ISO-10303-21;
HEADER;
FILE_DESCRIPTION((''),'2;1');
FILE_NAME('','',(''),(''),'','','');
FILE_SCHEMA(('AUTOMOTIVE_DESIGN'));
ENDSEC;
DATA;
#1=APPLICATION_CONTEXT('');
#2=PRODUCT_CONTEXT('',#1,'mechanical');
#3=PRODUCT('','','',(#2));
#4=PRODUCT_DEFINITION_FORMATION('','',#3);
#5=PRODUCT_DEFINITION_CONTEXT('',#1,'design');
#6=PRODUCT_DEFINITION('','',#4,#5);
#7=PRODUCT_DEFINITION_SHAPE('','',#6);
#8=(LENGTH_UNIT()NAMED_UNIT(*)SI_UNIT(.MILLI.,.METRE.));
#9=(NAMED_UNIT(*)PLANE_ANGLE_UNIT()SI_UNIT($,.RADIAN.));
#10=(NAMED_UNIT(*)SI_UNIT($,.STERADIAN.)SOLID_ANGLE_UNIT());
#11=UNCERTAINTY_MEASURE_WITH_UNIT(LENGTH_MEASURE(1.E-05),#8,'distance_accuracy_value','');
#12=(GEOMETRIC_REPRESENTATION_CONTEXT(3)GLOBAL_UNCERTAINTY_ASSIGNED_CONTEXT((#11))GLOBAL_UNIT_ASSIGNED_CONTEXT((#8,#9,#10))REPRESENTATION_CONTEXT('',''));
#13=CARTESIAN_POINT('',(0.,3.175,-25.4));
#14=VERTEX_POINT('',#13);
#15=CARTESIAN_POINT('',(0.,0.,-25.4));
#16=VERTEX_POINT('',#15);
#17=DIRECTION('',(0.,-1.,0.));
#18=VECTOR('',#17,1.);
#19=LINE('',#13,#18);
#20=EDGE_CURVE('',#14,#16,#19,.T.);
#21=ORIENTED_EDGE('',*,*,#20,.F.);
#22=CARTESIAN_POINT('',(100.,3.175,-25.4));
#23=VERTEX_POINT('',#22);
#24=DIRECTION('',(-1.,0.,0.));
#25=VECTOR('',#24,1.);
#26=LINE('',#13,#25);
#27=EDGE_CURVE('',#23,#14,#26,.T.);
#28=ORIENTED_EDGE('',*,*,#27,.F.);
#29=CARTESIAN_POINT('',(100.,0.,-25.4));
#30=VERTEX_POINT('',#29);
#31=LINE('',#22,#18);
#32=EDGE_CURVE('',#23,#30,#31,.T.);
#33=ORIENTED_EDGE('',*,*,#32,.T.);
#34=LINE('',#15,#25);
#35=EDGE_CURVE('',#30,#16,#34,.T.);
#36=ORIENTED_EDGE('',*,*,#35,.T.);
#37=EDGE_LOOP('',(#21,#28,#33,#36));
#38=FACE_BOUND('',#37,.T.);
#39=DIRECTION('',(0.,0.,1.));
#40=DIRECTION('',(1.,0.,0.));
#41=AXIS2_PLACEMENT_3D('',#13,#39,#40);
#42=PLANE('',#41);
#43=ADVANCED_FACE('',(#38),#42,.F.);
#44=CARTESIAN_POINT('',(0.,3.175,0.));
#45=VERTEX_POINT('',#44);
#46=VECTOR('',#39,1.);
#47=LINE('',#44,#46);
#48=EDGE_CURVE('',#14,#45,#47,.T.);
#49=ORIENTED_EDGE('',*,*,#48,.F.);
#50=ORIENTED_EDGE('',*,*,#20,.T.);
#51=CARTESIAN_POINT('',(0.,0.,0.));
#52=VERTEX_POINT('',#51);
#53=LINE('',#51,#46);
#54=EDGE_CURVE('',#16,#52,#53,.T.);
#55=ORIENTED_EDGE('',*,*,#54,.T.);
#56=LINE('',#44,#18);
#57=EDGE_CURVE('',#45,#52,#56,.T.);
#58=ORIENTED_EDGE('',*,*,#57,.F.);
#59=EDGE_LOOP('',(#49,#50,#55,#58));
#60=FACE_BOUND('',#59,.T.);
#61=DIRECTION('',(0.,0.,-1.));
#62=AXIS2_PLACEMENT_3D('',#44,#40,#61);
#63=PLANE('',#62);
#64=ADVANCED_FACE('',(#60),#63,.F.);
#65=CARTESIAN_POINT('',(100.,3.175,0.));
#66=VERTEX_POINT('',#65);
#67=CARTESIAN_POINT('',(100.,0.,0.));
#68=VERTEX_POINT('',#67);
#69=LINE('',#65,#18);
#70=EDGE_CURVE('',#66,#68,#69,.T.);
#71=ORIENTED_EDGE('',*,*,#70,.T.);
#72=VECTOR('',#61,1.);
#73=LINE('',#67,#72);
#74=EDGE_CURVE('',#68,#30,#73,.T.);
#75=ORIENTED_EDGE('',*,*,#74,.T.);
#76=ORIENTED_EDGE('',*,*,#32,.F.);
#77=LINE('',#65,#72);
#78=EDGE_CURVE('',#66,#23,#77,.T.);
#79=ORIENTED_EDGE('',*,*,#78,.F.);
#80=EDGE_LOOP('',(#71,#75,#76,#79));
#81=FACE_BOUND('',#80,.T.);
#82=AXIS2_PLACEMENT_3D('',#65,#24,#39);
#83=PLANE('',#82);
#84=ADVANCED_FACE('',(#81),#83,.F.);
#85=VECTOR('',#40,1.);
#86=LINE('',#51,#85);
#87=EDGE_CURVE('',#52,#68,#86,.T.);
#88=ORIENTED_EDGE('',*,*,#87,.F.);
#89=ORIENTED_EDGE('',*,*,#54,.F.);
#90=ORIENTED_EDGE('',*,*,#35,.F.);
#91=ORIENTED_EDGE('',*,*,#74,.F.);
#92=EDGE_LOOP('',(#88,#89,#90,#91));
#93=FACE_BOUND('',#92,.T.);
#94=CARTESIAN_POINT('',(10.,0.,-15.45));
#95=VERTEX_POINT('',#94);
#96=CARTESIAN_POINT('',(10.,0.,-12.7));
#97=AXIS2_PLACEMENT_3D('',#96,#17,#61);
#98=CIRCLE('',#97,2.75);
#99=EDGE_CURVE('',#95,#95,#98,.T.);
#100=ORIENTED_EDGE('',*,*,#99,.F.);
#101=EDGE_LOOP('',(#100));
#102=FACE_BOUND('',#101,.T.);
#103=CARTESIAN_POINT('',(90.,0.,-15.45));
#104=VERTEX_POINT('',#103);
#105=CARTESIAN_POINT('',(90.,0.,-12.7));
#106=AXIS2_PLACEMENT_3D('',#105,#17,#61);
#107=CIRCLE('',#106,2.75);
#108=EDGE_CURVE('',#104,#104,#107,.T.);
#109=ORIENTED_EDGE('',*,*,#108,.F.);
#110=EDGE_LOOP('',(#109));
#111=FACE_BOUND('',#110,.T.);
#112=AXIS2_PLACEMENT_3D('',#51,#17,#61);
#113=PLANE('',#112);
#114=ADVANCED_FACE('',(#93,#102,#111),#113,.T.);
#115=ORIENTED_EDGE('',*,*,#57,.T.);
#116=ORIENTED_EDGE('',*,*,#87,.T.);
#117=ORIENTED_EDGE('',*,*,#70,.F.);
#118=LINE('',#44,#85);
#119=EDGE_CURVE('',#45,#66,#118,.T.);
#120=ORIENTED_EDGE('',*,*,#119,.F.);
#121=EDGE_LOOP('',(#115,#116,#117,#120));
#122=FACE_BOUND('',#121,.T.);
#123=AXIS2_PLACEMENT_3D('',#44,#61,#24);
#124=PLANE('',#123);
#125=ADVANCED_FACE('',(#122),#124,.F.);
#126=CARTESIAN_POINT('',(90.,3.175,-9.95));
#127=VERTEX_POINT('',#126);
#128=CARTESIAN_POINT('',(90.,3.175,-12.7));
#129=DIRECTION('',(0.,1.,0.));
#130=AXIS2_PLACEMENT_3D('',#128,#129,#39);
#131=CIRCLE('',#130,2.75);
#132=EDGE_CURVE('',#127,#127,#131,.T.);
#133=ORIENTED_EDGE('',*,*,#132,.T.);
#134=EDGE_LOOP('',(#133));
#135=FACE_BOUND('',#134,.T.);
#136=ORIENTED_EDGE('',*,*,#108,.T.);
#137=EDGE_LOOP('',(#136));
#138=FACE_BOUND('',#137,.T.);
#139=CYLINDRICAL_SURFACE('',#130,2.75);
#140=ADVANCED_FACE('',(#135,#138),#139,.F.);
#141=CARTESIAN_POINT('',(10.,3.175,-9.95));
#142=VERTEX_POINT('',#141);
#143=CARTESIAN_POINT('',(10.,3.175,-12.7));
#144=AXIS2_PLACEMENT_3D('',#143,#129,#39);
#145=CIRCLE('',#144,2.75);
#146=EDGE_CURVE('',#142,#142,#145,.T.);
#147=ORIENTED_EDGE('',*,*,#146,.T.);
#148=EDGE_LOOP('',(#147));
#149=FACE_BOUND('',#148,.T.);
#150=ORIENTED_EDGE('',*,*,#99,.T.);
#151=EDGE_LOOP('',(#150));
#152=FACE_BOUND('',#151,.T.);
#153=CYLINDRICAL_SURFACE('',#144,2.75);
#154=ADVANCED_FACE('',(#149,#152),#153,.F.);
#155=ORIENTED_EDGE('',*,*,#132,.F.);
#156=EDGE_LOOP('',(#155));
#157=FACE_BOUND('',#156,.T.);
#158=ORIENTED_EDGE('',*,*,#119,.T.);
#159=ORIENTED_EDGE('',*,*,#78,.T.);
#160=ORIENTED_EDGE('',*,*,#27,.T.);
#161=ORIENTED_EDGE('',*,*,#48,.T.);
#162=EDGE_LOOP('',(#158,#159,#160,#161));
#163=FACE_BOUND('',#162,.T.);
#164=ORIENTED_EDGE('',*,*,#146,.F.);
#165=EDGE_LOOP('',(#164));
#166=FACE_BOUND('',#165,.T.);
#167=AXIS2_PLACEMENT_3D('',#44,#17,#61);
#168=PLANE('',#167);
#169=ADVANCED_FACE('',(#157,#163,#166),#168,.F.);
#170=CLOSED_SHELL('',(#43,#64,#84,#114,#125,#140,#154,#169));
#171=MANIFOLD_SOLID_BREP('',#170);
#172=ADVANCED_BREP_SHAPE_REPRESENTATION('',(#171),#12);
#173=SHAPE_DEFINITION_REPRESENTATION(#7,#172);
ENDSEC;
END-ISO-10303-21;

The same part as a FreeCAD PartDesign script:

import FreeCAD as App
import Part
import Sketcher

V = App.Vector
Q = App.Units.Quantity

doc = App.newDocument("Part")
body = doc.addObject("PartDesign::Body", "Body")

sketch1 = body.newObject("Sketcher::SketchObject", "Sketch")
sketch1.AttachmentSupport = (doc.getObject("XZ_Plane"), [""])
sketch1.MapMode = "FlatFace"
sketch1.addGeometry(Part.LineSegment(V(0, -25, 0), V(0, 0, 0)), False)
sketch1.addGeometry(Part.LineSegment(V(0, 0, 0), V(100, 0, 0)), False)
sketch1.addGeometry(Part.LineSegment(V(100, 0, 0), V(100, -25, 0)), False)
sketch1.addGeometry(Part.LineSegment(V(100, -25, 0), V(0, -25, 0)), False)
sketch1.addConstraint(Sketcher.Constraint("Coincident", 0, 2, 1, 1))
sketch1.addConstraint(Sketcher.Constraint("Coincident", 1, 2, 2, 1))
sketch1.addConstraint(Sketcher.Constraint("Coincident", 2, 2, 3, 1))
sketch1.addConstraint(Sketcher.Constraint("Coincident", 3, 2, 0, 1))
sketch1.addConstraint(Sketcher.Constraint("Vertical", 0))
sketch1.addConstraint(Sketcher.Constraint("Horizontal", 1))
sketch1.addConstraint(Sketcher.Constraint("Vertical", 2))
sketch1.addConstraint(Sketcher.Constraint("Horizontal", 3))
sketch1.addConstraint(Sketcher.Constraint("Coincident", 0, 2, -1, 1))
sketch1.addConstraint(Sketcher.Constraint("DistanceY", 0, 1, 0, 2, Q("1 in")))
sketch1.addConstraint(Sketcher.Constraint("DistanceX", 1, 1, 1, 2, 100.0))
pad1 = body.newObject("PartDesign::Pad", "Pad")
pad1.Profile = sketch1
pad1.Length = Q("0.125 in")
pad1.Reversed = True

sketch2 = body.newObject("Sketcher::SketchObject", "Sketch001")
sketch2.AttachmentSupport = (doc.getObject("XZ_Plane"), [""])
sketch2.MapMode = "FlatFace"
sketch2.AttachmentOffset = App.Placement(V(0, 0, -0.125 * 25.4), App.Rotation())
sketch2.addGeometry(Part.Circle(V(10, -12.7, 0), V(0, 0, 1), 2.8), False)
sketch2.addGeometry(Part.Circle(V(90, -12.7, 0), V(0, 0, 1), 2.8), False)
sketch2.addConstraint(Sketcher.Constraint("Equal", 0, 1))
sketch2.addConstraint(Sketcher.Constraint("Horizontal", 0, 3, 1, 3))
sketch2.addConstraint(Sketcher.Constraint("DistanceY", 0, 3, -1, 1, Q("0.5 in")))
sketch2.addConstraint(Sketcher.Constraint("Diameter", 0, 5.5))
sketch2.addConstraint(Sketcher.Constraint("DistanceX", -1, 1, 0, 3, 10.0))
sketch2.addConstraint(Sketcher.Constraint("DistanceX", -1, 1, 1, 3, 90.0))
doc.recompute()
hole = body.newObject("PartDesign::Hole", "Hole")
hole.Profile = sketch2
hole.ThreadType = "None"
hole.Diameter = 5.5
hole.DepthType = "Dimension"
hole.Depth = Q("0.49 in")
hole.DrillPoint = "Angled"
hole.DrillPointAngle = 118
hole.Reversed = True

doc.recompute()
